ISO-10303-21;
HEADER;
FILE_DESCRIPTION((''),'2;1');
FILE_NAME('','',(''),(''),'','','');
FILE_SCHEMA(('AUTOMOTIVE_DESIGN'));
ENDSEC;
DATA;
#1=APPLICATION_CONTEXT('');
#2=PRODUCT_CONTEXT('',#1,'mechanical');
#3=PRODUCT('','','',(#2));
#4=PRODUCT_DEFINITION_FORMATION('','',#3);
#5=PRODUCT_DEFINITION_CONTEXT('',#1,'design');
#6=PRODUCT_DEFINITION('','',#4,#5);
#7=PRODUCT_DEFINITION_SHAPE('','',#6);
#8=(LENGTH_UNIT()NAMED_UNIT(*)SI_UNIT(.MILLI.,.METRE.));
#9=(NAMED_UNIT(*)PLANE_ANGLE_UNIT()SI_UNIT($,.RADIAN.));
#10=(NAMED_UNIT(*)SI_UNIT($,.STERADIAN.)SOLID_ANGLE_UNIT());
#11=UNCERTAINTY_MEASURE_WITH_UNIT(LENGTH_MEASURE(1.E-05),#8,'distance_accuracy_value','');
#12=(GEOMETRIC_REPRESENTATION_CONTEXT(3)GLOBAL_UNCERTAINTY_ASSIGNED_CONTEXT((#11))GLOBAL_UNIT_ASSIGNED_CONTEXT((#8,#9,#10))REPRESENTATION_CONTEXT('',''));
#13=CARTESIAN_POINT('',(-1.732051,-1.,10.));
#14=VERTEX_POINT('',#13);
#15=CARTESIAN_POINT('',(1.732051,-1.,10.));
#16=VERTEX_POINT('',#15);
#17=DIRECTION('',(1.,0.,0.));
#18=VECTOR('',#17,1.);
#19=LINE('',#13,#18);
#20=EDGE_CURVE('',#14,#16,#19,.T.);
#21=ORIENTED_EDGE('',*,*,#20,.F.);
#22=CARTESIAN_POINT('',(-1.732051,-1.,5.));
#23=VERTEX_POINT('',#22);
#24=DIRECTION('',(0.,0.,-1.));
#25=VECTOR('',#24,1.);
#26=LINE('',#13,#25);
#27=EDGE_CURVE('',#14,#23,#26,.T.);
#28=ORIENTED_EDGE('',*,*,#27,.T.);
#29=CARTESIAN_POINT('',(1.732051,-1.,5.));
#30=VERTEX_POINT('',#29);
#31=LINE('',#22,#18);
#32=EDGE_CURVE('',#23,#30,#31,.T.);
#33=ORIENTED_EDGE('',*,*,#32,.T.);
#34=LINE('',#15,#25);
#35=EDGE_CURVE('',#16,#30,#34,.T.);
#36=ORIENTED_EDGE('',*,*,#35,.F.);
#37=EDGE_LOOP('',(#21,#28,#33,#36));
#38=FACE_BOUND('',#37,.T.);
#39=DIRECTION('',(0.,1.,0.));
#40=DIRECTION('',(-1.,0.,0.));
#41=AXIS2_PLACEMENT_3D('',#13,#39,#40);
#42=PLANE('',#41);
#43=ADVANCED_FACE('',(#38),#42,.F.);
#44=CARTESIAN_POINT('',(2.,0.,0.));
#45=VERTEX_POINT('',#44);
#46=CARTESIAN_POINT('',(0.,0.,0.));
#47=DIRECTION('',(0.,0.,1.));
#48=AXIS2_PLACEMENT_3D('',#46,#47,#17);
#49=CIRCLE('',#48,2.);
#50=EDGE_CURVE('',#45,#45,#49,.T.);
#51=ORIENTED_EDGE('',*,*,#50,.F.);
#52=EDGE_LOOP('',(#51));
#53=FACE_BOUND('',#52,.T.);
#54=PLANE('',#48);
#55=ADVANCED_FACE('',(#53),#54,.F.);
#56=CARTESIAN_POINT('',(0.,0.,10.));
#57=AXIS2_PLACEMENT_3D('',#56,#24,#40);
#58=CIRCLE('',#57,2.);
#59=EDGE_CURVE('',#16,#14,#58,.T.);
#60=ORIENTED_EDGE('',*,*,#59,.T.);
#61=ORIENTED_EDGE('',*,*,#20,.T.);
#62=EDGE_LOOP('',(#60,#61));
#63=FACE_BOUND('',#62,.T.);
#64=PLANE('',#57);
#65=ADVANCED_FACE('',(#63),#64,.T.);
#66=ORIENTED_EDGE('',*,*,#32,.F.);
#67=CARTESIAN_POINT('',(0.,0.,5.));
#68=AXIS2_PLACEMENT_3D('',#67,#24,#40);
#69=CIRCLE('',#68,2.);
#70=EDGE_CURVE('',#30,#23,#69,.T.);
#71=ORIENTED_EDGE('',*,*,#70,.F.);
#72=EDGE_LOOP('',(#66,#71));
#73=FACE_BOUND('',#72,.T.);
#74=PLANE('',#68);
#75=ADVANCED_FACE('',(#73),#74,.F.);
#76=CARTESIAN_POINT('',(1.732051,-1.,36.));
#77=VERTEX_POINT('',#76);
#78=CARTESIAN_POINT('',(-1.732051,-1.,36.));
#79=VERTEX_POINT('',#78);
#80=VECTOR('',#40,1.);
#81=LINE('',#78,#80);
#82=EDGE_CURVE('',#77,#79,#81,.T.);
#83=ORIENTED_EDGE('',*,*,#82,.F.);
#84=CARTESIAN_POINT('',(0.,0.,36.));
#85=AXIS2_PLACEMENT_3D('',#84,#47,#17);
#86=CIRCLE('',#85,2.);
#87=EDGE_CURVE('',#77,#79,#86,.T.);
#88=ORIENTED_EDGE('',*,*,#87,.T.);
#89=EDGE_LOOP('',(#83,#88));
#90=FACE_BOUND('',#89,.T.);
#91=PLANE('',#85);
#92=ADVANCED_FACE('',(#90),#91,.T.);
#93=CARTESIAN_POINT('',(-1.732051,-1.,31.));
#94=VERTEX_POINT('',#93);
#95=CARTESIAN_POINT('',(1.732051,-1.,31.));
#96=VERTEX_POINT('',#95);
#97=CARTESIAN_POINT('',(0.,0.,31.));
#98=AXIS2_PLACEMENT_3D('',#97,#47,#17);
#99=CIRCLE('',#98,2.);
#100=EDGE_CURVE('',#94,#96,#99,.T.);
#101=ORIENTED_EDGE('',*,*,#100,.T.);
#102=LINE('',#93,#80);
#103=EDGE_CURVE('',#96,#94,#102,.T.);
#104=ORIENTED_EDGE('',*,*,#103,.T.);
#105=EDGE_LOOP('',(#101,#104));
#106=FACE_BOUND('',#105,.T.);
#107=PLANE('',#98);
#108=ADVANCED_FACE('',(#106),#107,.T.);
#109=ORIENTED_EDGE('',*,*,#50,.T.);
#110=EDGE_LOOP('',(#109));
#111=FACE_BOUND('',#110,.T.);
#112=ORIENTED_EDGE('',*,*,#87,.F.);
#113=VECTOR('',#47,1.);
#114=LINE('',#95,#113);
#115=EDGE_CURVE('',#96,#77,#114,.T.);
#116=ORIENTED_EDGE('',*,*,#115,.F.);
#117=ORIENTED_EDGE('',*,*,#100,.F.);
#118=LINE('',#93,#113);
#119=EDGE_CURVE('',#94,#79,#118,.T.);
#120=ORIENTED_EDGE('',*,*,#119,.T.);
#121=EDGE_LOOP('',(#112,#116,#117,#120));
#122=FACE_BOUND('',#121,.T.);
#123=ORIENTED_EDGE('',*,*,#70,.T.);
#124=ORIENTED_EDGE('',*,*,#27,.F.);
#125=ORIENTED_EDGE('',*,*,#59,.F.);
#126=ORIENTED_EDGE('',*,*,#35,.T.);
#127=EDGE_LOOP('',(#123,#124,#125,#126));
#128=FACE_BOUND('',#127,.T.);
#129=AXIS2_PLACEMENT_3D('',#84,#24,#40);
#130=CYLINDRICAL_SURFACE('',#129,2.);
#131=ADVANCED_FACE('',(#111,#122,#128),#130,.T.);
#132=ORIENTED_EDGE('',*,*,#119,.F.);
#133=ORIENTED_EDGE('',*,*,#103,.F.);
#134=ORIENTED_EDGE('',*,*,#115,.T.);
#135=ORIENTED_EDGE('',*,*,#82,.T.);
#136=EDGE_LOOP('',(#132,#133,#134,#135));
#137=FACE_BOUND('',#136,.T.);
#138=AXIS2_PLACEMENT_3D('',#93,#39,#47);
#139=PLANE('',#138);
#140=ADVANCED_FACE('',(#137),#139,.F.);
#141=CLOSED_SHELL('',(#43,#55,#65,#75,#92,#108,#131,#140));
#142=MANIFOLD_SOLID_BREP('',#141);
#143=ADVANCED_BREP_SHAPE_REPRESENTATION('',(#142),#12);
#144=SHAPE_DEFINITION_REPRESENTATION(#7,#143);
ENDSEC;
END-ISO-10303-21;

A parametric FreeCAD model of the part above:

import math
import FreeCAD as App
import Part
import Sketcher
from FreeCAD import Vector

doc = App.newDocument("Part")
params = doc.addObject("Spreadsheet::Sheet", "Params")
for row, (alias, value) in enumerate([
    ("sketch1_diameter", "4 mm"),
    ("pad1_length", "36 mm"),
    ("sketch2_radius", "2 mm"),
    ("pocket1_length", "5 mm"),
    ("sketch3_radius", "2 mm"),
    ("pocket2_length", "5 mm"),
], start=1):
    params.set(f"A{row}", alias)
    params.set(f"B{row}", "=" + value)
    params.setAlias(f"B{row}", alias)

body = doc.addObject("PartDesign::Body", "Body")

sketch1 = body.newObject("Sketcher::SketchObject", "Sketch")
sketch1.AttachmentSupport = (doc.getObject("XY_Plane"), [""])
sketch1.MapMode = "FlatFace"
sketch1.addGeometry(Part.Circle(Vector(0, 0, 0), Vector(0, 0, 1), 2), False)
sketch1.addConstraint([
    Sketcher.Constraint("Coincident", 0, 3, -1, 1),
    Sketcher.Constraint("Diameter", 0, 4.0),
])
sketch1.setExpression("Constraints[1]", "Params.sketch1_diameter")
pad1 = body.newObject("PartDesign::Pad", "Pad")
pad1.Profile = sketch1
pad1.setExpression("Length", "Params.pad1_length")

sketch2 = body.newObject("Sketcher::SketchObject", "Sketch001")
sketch2.AttachmentSupport = (doc.getObject("XY_Plane"), [""])
sketch2.MapMode = "FlatFace"
sketch2.AttachmentOffset = App.Placement(Vector(0, 0, 31), App.Rotation())
sketch2.addGeometry([
    Part.LineSegment(Vector(1.7, -1, 0), Vector(-1.7, -1, 0)),
    Part.ArcOfCircle(Part.Circle(Vector(0, 0, 0), Vector(0, 0, 1), 2), math.radians(-150), math.radians(-30)),
], False)
sketch2.addConstraint([
    Sketcher.Constraint("Coincident", 0, 1, 1, 2),
    Sketcher.Constraint("Coincident", 1, 1, 0, 2),
    Sketcher.Constraint("Horizontal", 0),
    Sketcher.Constraint("Coincident", 1, 3, -1, 1),
    Sketcher.Constraint("Radius", 1, 2.0),
    Sketcher.Constraint("DistanceY", 0, 1, -1, 1, 1.0),
])
sketch2.setExpression("Constraints[4]", "Params.sketch2_radius")
pocket1 = body.newObject("PartDesign::Pocket", "Pocket")
pocket1.Profile = sketch2
pocket1.setExpression("Length", "Params.pocket1_length")
pocket1.Reversed = True

sketch3 = body.newObject("Sketcher::SketchObject", "Sketch002")
sketch3.AttachmentSupport = (doc.getObject("XY_Plane"), [""])
sketch3.MapMode = "FlatFace"
sketch3.AttachmentOffset = App.Placement(Vector(0, 0, 5), App.Rotation())
sketch3.addGeometry([
    Part.LineSegment(Vector(-1.7, -1, 0), Vector(1.7, -1, 0)),
    Part.ArcOfCircle(Part.Circle(Vector(0, 0, 0), Vector(0, 0, 1), 2), math.radians(-150), math.radians(-30)),
], False)
sketch3.addConstraint([
    Sketcher.Constraint("Coincident", 0, 1, 1, 1),
    Sketcher.Constraint("Coincident", 1, 2, 0, 2),
    Sketcher.Constraint("Horizontal", 0),
    Sketcher.Constraint("Coincident", 1, 3, -1, 1),
    Sketcher.Constraint("Radius", 1, 2.0),
    Sketcher.Constraint("DistanceY", 0, 1, -1, 1, 1.0),
])
sketch3.setExpression("Constraints[4]", "Params.sketch3_radius")
pocket2 = body.newObject("PartDesign::Pocket", "Pocket001")
pocket2.Profile = sketch3
pocket2.setExpression("Length", "Params.pocket2_length")
pocket2.Reversed = True

doc.recompute()
